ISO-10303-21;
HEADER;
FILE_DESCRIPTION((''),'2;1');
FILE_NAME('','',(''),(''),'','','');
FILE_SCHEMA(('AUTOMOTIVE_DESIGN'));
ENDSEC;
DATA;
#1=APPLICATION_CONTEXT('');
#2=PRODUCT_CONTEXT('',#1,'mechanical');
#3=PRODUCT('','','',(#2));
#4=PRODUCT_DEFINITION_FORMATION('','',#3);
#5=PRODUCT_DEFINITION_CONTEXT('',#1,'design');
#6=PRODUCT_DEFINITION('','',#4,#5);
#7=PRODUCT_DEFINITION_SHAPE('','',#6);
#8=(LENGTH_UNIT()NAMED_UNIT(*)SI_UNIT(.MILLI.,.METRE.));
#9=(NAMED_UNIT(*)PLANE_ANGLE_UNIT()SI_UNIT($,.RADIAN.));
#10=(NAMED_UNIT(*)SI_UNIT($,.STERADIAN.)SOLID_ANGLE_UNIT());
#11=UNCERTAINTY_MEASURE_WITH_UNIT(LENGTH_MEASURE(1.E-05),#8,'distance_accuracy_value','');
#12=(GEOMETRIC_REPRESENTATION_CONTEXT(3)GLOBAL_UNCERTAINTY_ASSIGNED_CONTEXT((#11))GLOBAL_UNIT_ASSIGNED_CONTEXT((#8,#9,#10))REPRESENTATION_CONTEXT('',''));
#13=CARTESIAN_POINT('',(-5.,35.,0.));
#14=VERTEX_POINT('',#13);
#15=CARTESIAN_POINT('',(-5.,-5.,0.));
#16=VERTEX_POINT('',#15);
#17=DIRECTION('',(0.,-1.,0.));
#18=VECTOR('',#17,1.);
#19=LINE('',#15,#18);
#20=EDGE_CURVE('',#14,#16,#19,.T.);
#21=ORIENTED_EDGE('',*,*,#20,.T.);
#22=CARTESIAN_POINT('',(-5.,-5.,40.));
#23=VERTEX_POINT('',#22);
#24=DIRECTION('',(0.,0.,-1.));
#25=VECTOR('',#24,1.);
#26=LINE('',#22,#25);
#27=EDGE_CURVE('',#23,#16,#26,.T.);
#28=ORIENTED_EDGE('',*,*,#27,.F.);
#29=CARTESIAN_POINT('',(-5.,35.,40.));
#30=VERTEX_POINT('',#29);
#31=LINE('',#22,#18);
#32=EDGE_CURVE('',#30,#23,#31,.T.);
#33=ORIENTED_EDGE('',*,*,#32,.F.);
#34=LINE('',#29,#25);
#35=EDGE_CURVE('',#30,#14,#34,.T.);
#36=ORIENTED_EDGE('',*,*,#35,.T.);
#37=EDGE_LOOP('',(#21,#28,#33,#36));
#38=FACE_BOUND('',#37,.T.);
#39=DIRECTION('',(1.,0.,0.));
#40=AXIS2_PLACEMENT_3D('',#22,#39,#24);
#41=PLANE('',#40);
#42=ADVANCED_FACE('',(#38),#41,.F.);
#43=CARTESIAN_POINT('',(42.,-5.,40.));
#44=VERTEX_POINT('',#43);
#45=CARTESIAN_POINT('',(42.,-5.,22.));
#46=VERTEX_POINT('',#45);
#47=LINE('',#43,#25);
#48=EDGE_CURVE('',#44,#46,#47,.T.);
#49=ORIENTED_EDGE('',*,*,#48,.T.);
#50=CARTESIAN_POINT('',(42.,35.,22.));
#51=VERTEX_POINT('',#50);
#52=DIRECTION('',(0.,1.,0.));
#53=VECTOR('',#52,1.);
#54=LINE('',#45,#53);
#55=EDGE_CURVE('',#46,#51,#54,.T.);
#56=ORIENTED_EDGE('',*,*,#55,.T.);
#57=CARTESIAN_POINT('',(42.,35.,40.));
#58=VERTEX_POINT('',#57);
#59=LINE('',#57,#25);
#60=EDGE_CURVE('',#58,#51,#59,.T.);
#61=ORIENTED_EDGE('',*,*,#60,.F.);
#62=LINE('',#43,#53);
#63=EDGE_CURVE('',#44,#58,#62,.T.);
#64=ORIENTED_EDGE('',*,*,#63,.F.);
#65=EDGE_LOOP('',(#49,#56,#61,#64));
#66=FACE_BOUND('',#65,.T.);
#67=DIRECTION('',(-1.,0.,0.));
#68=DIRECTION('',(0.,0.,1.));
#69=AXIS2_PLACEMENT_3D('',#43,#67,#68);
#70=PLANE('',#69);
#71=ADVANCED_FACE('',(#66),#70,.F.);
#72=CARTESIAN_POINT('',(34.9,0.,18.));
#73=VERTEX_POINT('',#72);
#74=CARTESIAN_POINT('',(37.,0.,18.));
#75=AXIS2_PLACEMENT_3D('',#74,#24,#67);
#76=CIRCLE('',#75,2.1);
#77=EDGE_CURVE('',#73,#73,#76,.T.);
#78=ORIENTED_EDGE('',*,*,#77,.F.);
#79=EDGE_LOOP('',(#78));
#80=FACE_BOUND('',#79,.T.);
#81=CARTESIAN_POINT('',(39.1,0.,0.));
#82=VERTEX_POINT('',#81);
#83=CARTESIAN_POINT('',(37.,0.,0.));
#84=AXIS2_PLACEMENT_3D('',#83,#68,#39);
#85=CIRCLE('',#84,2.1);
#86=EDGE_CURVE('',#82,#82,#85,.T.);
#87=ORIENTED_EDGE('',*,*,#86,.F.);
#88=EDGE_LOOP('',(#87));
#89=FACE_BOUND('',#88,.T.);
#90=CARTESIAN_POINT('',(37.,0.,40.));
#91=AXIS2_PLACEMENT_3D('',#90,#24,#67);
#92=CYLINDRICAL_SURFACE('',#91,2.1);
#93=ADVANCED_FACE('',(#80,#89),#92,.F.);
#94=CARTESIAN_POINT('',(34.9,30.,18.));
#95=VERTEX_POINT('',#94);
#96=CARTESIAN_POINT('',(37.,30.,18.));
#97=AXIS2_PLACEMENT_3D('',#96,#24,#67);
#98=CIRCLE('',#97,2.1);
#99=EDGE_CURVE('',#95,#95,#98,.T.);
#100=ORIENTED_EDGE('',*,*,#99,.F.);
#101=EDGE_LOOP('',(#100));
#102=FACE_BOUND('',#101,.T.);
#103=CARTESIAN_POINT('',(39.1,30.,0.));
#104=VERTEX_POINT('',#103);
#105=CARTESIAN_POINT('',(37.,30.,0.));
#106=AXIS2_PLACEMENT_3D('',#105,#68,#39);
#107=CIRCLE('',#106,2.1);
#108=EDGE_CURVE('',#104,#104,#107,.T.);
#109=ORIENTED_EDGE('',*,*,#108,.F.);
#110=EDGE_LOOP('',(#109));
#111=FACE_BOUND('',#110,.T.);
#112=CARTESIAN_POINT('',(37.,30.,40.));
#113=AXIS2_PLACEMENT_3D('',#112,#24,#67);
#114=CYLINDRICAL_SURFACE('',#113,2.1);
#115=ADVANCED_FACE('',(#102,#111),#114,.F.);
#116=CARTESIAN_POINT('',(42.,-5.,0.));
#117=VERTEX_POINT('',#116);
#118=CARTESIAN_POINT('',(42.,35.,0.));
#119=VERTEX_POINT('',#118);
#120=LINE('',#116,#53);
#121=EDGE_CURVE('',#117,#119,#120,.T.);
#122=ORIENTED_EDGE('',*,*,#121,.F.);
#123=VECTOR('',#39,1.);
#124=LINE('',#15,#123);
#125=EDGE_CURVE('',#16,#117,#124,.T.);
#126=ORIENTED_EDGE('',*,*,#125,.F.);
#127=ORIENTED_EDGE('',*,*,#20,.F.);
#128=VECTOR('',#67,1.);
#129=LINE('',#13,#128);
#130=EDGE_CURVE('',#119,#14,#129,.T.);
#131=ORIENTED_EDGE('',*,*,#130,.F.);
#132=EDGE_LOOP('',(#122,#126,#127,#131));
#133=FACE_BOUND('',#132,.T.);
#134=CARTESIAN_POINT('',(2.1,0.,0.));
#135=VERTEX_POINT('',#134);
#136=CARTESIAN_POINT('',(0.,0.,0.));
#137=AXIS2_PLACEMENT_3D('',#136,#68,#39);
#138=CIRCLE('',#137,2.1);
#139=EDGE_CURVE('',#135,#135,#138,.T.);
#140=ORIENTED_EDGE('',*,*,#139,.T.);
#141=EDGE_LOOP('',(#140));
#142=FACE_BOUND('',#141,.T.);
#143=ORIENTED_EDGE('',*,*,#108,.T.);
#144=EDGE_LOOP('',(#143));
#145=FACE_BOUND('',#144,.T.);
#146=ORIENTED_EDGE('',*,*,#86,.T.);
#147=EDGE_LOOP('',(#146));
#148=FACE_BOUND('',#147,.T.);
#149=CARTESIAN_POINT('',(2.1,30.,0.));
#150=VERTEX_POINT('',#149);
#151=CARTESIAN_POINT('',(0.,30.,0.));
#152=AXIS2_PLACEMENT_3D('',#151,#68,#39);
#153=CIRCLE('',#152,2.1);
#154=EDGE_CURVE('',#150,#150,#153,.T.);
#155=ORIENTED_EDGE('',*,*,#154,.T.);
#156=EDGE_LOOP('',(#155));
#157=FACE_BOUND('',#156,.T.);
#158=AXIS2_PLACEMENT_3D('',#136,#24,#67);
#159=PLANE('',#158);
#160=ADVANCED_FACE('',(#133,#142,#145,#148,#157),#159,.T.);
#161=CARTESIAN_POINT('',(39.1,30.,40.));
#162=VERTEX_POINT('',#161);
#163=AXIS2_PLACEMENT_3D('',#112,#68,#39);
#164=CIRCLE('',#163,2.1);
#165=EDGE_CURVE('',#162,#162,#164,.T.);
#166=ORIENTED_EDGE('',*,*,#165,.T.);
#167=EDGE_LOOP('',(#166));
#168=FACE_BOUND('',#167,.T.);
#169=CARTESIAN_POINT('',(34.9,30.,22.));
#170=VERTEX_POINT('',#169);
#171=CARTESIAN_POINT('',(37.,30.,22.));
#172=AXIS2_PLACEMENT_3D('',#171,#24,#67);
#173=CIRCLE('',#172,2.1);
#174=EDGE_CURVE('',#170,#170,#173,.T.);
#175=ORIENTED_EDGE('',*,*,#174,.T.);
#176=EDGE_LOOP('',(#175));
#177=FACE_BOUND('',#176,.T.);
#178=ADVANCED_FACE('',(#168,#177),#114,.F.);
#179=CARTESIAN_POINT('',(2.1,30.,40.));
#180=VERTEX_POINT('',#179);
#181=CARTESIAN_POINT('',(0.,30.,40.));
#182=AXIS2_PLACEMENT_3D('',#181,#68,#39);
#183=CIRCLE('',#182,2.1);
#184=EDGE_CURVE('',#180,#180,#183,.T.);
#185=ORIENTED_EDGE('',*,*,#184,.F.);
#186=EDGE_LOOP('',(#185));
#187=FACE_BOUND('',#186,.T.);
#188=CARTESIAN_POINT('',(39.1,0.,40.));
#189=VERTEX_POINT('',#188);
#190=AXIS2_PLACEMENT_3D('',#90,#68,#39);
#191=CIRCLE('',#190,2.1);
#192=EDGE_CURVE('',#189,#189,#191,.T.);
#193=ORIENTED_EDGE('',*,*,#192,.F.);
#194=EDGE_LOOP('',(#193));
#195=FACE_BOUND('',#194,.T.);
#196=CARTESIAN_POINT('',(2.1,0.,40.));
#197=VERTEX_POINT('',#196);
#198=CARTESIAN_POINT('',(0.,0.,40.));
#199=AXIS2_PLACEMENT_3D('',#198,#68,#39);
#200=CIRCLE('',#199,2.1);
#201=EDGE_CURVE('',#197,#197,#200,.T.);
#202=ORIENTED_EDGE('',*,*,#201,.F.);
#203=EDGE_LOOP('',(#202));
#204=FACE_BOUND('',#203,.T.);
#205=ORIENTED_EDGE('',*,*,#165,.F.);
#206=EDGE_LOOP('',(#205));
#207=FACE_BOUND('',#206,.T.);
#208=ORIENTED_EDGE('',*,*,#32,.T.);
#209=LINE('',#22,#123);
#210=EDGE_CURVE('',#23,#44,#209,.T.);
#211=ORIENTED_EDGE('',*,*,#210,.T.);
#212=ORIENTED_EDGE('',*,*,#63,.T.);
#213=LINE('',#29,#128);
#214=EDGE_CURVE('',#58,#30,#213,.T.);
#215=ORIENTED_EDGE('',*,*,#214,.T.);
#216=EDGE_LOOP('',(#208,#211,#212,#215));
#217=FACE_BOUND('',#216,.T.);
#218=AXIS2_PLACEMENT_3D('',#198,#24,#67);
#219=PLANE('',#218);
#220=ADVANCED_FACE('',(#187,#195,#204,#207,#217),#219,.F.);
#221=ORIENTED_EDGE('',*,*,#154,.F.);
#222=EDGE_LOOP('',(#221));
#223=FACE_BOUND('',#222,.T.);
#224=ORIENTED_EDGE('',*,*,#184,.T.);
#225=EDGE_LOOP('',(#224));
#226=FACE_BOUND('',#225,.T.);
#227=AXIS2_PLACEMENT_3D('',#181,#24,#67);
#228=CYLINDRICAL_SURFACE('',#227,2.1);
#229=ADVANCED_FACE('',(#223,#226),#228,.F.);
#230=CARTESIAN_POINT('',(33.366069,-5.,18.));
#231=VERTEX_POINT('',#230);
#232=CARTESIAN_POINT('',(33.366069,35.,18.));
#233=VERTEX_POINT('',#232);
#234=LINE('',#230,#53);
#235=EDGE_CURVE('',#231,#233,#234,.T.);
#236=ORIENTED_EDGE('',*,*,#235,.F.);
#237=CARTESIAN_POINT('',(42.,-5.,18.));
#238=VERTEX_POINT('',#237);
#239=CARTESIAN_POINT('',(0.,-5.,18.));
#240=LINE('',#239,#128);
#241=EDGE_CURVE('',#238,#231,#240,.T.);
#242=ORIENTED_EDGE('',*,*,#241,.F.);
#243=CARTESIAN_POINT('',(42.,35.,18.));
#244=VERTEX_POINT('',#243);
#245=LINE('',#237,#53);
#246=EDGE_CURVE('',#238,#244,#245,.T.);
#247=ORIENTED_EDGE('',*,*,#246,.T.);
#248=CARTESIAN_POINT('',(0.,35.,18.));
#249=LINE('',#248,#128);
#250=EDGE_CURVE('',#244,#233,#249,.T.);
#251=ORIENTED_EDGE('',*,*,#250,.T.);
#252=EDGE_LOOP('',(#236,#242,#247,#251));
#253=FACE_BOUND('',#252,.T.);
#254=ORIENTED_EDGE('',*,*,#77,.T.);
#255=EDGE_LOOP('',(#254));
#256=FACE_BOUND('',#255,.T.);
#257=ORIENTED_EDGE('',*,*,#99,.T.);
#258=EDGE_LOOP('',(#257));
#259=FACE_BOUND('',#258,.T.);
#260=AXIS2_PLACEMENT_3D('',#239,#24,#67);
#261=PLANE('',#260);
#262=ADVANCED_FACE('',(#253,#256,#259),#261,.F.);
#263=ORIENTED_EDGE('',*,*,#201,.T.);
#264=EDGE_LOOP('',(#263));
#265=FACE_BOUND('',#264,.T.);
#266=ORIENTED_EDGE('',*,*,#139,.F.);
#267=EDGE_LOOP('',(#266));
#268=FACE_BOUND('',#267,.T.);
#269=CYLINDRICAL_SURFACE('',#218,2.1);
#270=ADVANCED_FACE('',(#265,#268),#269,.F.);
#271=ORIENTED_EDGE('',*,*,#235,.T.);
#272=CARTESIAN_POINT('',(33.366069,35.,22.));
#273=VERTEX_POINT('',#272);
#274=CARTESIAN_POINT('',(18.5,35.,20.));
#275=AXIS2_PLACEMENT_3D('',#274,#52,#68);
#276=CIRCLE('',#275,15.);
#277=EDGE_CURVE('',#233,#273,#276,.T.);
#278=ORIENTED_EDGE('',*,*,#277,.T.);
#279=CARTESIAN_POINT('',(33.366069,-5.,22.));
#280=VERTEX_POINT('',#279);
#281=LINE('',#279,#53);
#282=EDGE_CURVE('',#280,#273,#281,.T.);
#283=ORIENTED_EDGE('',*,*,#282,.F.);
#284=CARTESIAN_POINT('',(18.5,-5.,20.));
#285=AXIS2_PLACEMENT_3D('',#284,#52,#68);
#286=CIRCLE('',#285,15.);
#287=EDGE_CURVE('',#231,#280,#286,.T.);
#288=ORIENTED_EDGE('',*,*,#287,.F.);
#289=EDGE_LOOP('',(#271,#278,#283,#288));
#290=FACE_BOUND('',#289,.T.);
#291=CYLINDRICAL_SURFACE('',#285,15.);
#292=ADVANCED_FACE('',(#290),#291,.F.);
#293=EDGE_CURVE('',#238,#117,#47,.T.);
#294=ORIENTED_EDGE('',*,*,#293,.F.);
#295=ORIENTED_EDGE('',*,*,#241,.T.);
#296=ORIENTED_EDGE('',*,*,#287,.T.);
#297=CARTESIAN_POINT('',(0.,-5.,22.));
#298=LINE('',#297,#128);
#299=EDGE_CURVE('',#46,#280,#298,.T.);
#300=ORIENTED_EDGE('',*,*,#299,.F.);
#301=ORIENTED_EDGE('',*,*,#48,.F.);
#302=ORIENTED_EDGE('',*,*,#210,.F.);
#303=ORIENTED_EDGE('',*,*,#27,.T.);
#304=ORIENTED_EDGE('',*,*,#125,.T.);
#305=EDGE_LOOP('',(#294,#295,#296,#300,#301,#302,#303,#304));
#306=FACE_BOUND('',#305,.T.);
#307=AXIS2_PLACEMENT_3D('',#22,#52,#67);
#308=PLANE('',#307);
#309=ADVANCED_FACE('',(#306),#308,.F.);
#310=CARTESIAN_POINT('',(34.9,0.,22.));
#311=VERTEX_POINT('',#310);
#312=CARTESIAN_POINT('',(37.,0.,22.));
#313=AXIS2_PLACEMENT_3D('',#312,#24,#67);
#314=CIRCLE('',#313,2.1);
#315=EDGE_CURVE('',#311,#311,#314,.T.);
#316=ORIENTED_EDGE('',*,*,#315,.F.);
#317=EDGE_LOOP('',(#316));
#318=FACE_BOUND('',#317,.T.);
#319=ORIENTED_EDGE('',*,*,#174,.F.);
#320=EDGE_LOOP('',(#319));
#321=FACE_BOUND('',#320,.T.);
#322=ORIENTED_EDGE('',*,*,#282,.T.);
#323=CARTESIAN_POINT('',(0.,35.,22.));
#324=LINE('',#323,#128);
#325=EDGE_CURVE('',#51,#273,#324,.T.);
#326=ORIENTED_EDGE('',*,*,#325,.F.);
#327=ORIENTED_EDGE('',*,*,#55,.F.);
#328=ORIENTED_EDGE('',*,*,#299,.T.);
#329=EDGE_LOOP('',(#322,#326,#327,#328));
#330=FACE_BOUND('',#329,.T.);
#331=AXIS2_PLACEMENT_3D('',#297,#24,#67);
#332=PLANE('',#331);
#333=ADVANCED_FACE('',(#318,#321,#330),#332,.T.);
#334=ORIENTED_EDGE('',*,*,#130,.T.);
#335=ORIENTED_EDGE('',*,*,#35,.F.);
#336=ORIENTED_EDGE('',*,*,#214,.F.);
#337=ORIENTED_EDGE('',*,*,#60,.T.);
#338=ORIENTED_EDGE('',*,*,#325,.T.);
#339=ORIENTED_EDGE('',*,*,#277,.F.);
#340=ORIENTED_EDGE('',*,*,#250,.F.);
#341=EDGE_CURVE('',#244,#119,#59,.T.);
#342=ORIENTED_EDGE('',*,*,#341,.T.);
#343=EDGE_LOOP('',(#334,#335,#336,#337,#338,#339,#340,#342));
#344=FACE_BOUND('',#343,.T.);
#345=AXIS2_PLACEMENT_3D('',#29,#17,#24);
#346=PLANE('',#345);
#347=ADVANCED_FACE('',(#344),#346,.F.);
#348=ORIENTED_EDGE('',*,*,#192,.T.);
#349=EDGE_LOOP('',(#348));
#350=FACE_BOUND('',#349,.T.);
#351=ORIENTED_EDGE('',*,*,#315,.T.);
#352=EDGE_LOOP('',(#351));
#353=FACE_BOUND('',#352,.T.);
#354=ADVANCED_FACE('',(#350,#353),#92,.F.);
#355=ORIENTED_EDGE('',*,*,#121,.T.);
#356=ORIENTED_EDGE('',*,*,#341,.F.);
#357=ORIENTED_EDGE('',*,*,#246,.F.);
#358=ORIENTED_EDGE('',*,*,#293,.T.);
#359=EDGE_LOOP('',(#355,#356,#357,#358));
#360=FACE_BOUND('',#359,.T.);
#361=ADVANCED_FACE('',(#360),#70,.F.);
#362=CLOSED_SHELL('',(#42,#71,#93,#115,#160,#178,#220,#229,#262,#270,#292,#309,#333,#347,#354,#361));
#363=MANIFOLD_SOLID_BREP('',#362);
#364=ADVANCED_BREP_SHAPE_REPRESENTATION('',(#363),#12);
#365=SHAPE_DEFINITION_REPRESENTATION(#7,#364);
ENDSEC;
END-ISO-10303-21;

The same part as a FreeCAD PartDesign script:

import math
import FreeCAD as App
import Part
import Sketcher

V = App.Vector

doc = App.newDocument("Part")
params = doc.addObject("Spreadsheet::Sheet", "Params")
for row, (alias, value) in enumerate([
    ("sketch1_diameter", "4.2 mm"),
    ("sketch1_width", "47 mm"),
    ("sketch1_height", "40 mm"),
    ("pad1_length", "40 mm"),
    ("sketch2_diameter", "30 mm"),
    ("sketch2_width", "47 mm"),
    ("sketch2_height", "40 mm"),
    ("sketch2_width2", "63.71 mm"),
    ("sketch2_height2", "56.71 mm"),
    ("pocket1_length", "71.45566 mm"),
    ("sketch3_radius", "15 mm"),
    ("sketch3_height", "4 mm"),
], start=1):
    params.set(f"A{row}", alias)
    params.set(f"B{row}", "=" + value)
    params.setAlias(f"B{row}", alias)

body = doc.addObject("PartDesign::Body", "Body")

sketch1 = body.newObject("Sketcher::SketchObject", "Sketch")
sketch1.AttachmentSupport = (doc.getObject("XY_Plane"), [""])
sketch1.MapMode = "FlatFace"
sketch1.addGeometry([
    Part.LineSegment(V(-5, 35, 0), V(-5, -5, 0)),
    Part.LineSegment(V(-5, -5, 0), V(42, -5, 0)),
    Part.LineSegment(V(42, -5, 0), V(42, 35, 0)),
    Part.LineSegment(V(42, 35, 0), V(-5, 35, 0)),
    Part.Circle(V(0, 0, 0), V(0, 0, 1), 2.1),
    Part.Circle(V(37, 0, 0), V(0, 0, 1), 2.1),
    Part.Circle(V(0, 30, 0), V(0, 0, 1), 2.1),
    Part.Circle(V(37, 30, 0), V(0, 0, 1), 2.1),
], False)
sketch1.addConstraint([
    Sketcher.Constraint("Coincident", 0, 2, 1, 1),
    Sketcher.Constraint("Coincident", 1, 2, 2, 1),
    Sketcher.Constraint("Coincident", 2, 2, 3, 1),
    Sketcher.Constraint("Coincident", 3, 2, 0, 1),
    Sketcher.Constraint("Vertical", 0),
    Sketcher.Constraint("Horizontal", 1),
    Sketcher.Constraint("Vertical", 2),
    Sketcher.Constraint("Horizontal", 3),
    Sketcher.Constraint("Coincident", 4, 3, -1, 1),
    Sketcher.Constraint("Equal", 4, 5),
    Sketcher.Constraint("Equal", 5, 6),
    Sketcher.Constraint("Equal", 6, 7),
    Sketcher.Constraint("PointOnObject", 5, 3, -1),
    Sketcher.Constraint("PointOnObject", 6, 3, -2),
    Sketcher.Constraint("Horizontal", 6, 3, 7, 3),
    Sketcher.Constraint("Vertical", 5, 3, 7, 3),
    Sketcher.Constraint("Diameter", 4, 4.2),
    Sketcher.Constraint("DistanceX", 1, 1, 1, 2, 47.0),
    Sketcher.Constraint("DistanceY", 0, 2, 0, 1, 40.0),
    Sketcher.Constraint("DistanceX", -1, 1, 5, 3, 37.0),
    Sketcher.Constraint("DistanceY", -1, 1, 6, 3, 30.0),
    Sketcher.Constraint("DistanceX", 0, 2, -1, 1, 5.0),
    Sketcher.Constraint("DistanceY", 0, 2, -1, 1, 5.0),
])
sketch1.setExpression("Constraints[16]", "Params.sketch1_diameter")
sketch1.setExpression("Constraints[17]", "Params.sketch1_width")
sketch1.setExpression("Constraints[18]", "Params.sketch1_height")
pad1 = body.newObject("PartDesign::Pad", "Pad")
pad1.Profile = sketch1
pad1.setExpression("Length", "Params.pad1_length")

sketch2 = body.newObject("Sketcher::SketchObject", "Sketch001")
sketch2.AttachmentSupport = (doc.getObject("XZ_Plane"), [""])
sketch2.MapMode = "FlatFace"
sketch2.AttachmentOffset = App.Placement(V(0, 0, -35), App.Rotation())
sketch2.addGeometry([
    Part.LineSegment(V(-13.355, -8.355, 0), V(-13.355, 48.355, 0)),
    Part.LineSegment(V(-13.355, 48.355, 0), V(50.355, 48.355, 0)),
    Part.LineSegment(V(50.355, 48.355, 0), V(50.355, -8.355, 0)),
    Part.LineSegment(V(50.355, -8.355, 0), V(-13.355, -8.355, 0)),
    Part.LineSegment(V(42, 40, 0), V(-5, 40, 0)),
    Part.LineSegment(V(-5, 40, 0), V(-5, 0, 0)),
    Part.LineSegment(V(-5, 0, 0), V(42, 0, 0)),
    Part.LineSegment(V(42, 0, 0), V(42, 40, 0)),
    Part.Circle(V(18.5, 20, 0), V(0, 0, 1), 15),
], False)
sketch2.addConstraint([
    Sketcher.Constraint("Coincident", 0, 2, 1, 1),
    Sketcher.Constraint("Coincident", 1, 2, 2, 1),
    Sketcher.Constraint("Coincident", 2, 2, 3, 1),
    Sketcher.Constraint("Coincident", 3, 2, 0, 1),
    Sketcher.Constraint("Coincident", 4, 2, 5, 1),
    Sketcher.Constraint("Coincident", 5, 2, 6, 1),
    Sketcher.Constraint("Coincident", 6, 2, 7, 1),
    Sketcher.Constraint("Coincident", 7, 2, 4, 1),
    Sketcher.Constraint("Vertical", 0),
    Sketcher.Constraint("Horizontal", 1),
    Sketcher.Constraint("Vertical", 2),
    Sketcher.Constraint("Horizontal", 3),
    Sketcher.Constraint("Horizontal", 4),
    Sketcher.Constraint("Vertical", 5),
    Sketcher.Constraint("Horizontal", 6),
    Sketcher.Constraint("Vertical", 7),
    Sketcher.Constraint("PointOnObject", 5, 2, -1),
    Sketcher.Constraint("Diameter", 8, 30.0),
    Sketcher.Constraint("DistanceX", 4, 2, 4, 1, 47.0),
    Sketcher.Constraint("DistanceY", 5, 2, 5, 1, 40.0),
    Sketcher.Constraint("DistanceY", -1, 1, 8, 3, 20.0),
    Sketcher.Constraint("DistanceX", 4, 2, -1, 1, 5.0),
    Sketcher.Constraint("DistanceX", 1, 1, 1, 2, 63.71),
    Sketcher.Constraint("DistanceY", 0, 1, 0, 2, 56.71),
    Sketcher.Constraint("DistanceX", -1, 1, 8, 3, 18.5),
    Sketcher.Constraint("DistanceX", 0, 2, -1, 1, 13.355),
    Sketcher.Constraint("DistanceY", -1, 1, 0, 2, 48.355),
])
sketch2.setExpression("Constraints[17]", "Params.sketch2_diameter")
sketch2.setExpression("Constraints[18]", "Params.sketch2_width")
sketch2.setExpression("Constraints[19]", "Params.sketch2_height")
sketch2.setExpression("Constraints[22]", "Params.sketch2_width2")
sketch2.setExpression("Constraints[23]", "Params.sketch2_height2")
pocket1 = body.newObject("PartDesign::Pocket", "Pocket")
pocket1.Profile = sketch2
pocket1.setExpression("Length", "Params.pocket1_length")
pocket1.Reversed = True

sketch3 = body.newObject("Sketcher::SketchObject", "Sketch002")
sketch3.AttachmentSupport = (doc.getObject("XZ_Plane"), [""])
sketch3.MapMode = "FlatFace"
sketch3.AttachmentOffset = App.Placement(V(0, 0, -35), App.Rotation())
sketch3.addGeometry([
    Part.LineSegment(V(42, 18, 0), V(33.366069, 18, 0)),
    Part.ArcOfCircle(Part.Circle(V(18.5, 20, 0), V(0, 0, 1), 15), math.radians(-7.662256), math.radians(0)),
    Part.ArcOfCircle(Part.Circle(V(18.5, 20, 0), V(0, 0, 1), 15), math.radians(0), math.radians(7.662256)),
    Part.LineSegment(V(33.366069, 22, 0), V(42, 22, 0)),
    Part.LineSegment(V(42, 22, 0), V(42, 18, 0)),
], False)
sketch3.addConstraint([
    Sketcher.Constraint("Coincident", 0, 2, 1, 1),
    Sketcher.Constraint("Tangent", 1, 2, 2, 1),
    Sketcher.Constraint("Coincident", 2, 2, 3, 1),
    Sketcher.Constraint("Coincident", 3, 2, 4, 1),
    Sketcher.Constraint("Coincident", 4, 2, 0, 1),
    Sketcher.Constraint("Horizontal", 0),
    Sketcher.Constraint("Horizontal", 3),
    Sketcher.Constraint("Vertical", 4),
    Sketcher.Constraint("Equal", 1, 2),
    Sketcher.Constraint("Horizontal", 2, 3, 1, 2),
    Sketcher.Constraint("Vertical", 0, 2, 2, 2),
    Sketcher.Constraint("Radius", 1, 15.0),
    Sketcher.Constraint("DistanceY", 4, 2, 4, 1, 4.0),
    Sketcher.Constraint("DistanceY", -1, 1, 1, 3, 20.0),
    Sketcher.Constraint("DistanceX", -1, 1, 3, 2, 42.0),
    Sketcher.Constraint("DistanceX", -1, 1, 1, 3, 18.5),
])
sketch3.setExpression("Constraints[11]", "Params.sketch3_radius")
sketch3.setExpression("Constraints[12]", "Params.sketch3_height")
pocket2 = body.newObject("PartDesign::Pocket", "Pocket001")
pocket2.Profile = sketch3
pocket2.Type = "ThroughAll"
pocket2.Reversed = True

doc.recompute()
